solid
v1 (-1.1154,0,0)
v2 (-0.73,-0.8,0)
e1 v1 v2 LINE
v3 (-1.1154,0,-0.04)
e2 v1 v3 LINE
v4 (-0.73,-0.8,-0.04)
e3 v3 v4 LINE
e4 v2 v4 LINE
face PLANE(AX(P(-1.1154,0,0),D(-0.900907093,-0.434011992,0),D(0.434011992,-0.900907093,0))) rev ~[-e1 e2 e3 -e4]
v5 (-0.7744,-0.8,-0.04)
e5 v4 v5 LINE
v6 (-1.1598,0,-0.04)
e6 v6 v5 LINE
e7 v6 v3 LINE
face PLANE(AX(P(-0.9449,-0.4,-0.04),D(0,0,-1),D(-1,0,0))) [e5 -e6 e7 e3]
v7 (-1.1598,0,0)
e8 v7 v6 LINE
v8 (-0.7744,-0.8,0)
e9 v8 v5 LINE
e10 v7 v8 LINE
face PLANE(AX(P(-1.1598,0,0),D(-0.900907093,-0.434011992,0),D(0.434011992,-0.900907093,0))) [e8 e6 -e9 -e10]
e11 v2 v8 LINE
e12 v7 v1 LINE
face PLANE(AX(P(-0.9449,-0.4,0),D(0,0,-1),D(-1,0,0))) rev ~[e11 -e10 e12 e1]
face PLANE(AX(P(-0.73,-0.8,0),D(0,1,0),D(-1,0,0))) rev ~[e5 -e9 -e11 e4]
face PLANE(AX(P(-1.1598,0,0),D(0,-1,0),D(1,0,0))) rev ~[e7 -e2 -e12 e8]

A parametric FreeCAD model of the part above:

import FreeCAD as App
import Part
import Sketcher
from FreeCAD import Vector
Q = App.Units.Quantity

doc = App.newDocument("Part")
body = doc.addObject("PartDesign::Body", "Body")

# Sketch on XY plane
sketch1 = body.newObject("Sketcher::SketchObject", "Sketch")
sketch1.AttachmentSupport = (doc.getObject("XY_Plane"), [""])
sketch1.MapMode = "FlatFace"
sketch1.addGeometry([
    Part.LineSegment(Vector(-1.115, 0, 0), Vector(-1.16, 0, 0)),
    Part.LineSegment(Vector(-1.16, 0, 0), Vector(-0.774, -0.8, 0)),
    Part.LineSegment(Vector(-0.774, -0.8, 0), Vector(-0.73, -0.8, 0)),
    Part.LineSegment(Vector(-0.73, -0.8, 0), Vector(-1.115, 0, 0)),
], False)
sketch1.addConstraint([
    Sketcher.Constraint("Coincident", 0, 2, 1, 1),
    Sketcher.Constraint("Coincident", 1, 2, 2, 1),
    Sketcher.Constraint("Coincident", 2, 2, 3, 1),
    Sketcher.Constraint("Coincident", 3, 2, 0, 1),
    Sketcher.Constraint("Horizontal", 0),
    Sketcher.Constraint("Horizontal", 2),
    Sketcher.Constraint("PointOnObject", 0, 2, -1),
    Sketcher.Constraint("Parallel", 1, 3),
    Sketcher.Constraint("DistanceY", 1, 2, -1, 1, Q("0.8 mm")),
    Sketcher.Constraint("DistanceX", 2, 2, -1, 1, Q("0.73 mm")),
    Sketcher.Constraint("Distance", 1, Q("0.888 mm")),
    Sketcher.Constraint("DistanceX", 0, 2, 0, 1, Q("0.0444 mm")),
])
pad1 = body.newObject("PartDesign::Pad", "Pad")
pad1.Profile = sketch1
pad1.Length = 0.04
pad1.Reversed = True

doc.recompute()
